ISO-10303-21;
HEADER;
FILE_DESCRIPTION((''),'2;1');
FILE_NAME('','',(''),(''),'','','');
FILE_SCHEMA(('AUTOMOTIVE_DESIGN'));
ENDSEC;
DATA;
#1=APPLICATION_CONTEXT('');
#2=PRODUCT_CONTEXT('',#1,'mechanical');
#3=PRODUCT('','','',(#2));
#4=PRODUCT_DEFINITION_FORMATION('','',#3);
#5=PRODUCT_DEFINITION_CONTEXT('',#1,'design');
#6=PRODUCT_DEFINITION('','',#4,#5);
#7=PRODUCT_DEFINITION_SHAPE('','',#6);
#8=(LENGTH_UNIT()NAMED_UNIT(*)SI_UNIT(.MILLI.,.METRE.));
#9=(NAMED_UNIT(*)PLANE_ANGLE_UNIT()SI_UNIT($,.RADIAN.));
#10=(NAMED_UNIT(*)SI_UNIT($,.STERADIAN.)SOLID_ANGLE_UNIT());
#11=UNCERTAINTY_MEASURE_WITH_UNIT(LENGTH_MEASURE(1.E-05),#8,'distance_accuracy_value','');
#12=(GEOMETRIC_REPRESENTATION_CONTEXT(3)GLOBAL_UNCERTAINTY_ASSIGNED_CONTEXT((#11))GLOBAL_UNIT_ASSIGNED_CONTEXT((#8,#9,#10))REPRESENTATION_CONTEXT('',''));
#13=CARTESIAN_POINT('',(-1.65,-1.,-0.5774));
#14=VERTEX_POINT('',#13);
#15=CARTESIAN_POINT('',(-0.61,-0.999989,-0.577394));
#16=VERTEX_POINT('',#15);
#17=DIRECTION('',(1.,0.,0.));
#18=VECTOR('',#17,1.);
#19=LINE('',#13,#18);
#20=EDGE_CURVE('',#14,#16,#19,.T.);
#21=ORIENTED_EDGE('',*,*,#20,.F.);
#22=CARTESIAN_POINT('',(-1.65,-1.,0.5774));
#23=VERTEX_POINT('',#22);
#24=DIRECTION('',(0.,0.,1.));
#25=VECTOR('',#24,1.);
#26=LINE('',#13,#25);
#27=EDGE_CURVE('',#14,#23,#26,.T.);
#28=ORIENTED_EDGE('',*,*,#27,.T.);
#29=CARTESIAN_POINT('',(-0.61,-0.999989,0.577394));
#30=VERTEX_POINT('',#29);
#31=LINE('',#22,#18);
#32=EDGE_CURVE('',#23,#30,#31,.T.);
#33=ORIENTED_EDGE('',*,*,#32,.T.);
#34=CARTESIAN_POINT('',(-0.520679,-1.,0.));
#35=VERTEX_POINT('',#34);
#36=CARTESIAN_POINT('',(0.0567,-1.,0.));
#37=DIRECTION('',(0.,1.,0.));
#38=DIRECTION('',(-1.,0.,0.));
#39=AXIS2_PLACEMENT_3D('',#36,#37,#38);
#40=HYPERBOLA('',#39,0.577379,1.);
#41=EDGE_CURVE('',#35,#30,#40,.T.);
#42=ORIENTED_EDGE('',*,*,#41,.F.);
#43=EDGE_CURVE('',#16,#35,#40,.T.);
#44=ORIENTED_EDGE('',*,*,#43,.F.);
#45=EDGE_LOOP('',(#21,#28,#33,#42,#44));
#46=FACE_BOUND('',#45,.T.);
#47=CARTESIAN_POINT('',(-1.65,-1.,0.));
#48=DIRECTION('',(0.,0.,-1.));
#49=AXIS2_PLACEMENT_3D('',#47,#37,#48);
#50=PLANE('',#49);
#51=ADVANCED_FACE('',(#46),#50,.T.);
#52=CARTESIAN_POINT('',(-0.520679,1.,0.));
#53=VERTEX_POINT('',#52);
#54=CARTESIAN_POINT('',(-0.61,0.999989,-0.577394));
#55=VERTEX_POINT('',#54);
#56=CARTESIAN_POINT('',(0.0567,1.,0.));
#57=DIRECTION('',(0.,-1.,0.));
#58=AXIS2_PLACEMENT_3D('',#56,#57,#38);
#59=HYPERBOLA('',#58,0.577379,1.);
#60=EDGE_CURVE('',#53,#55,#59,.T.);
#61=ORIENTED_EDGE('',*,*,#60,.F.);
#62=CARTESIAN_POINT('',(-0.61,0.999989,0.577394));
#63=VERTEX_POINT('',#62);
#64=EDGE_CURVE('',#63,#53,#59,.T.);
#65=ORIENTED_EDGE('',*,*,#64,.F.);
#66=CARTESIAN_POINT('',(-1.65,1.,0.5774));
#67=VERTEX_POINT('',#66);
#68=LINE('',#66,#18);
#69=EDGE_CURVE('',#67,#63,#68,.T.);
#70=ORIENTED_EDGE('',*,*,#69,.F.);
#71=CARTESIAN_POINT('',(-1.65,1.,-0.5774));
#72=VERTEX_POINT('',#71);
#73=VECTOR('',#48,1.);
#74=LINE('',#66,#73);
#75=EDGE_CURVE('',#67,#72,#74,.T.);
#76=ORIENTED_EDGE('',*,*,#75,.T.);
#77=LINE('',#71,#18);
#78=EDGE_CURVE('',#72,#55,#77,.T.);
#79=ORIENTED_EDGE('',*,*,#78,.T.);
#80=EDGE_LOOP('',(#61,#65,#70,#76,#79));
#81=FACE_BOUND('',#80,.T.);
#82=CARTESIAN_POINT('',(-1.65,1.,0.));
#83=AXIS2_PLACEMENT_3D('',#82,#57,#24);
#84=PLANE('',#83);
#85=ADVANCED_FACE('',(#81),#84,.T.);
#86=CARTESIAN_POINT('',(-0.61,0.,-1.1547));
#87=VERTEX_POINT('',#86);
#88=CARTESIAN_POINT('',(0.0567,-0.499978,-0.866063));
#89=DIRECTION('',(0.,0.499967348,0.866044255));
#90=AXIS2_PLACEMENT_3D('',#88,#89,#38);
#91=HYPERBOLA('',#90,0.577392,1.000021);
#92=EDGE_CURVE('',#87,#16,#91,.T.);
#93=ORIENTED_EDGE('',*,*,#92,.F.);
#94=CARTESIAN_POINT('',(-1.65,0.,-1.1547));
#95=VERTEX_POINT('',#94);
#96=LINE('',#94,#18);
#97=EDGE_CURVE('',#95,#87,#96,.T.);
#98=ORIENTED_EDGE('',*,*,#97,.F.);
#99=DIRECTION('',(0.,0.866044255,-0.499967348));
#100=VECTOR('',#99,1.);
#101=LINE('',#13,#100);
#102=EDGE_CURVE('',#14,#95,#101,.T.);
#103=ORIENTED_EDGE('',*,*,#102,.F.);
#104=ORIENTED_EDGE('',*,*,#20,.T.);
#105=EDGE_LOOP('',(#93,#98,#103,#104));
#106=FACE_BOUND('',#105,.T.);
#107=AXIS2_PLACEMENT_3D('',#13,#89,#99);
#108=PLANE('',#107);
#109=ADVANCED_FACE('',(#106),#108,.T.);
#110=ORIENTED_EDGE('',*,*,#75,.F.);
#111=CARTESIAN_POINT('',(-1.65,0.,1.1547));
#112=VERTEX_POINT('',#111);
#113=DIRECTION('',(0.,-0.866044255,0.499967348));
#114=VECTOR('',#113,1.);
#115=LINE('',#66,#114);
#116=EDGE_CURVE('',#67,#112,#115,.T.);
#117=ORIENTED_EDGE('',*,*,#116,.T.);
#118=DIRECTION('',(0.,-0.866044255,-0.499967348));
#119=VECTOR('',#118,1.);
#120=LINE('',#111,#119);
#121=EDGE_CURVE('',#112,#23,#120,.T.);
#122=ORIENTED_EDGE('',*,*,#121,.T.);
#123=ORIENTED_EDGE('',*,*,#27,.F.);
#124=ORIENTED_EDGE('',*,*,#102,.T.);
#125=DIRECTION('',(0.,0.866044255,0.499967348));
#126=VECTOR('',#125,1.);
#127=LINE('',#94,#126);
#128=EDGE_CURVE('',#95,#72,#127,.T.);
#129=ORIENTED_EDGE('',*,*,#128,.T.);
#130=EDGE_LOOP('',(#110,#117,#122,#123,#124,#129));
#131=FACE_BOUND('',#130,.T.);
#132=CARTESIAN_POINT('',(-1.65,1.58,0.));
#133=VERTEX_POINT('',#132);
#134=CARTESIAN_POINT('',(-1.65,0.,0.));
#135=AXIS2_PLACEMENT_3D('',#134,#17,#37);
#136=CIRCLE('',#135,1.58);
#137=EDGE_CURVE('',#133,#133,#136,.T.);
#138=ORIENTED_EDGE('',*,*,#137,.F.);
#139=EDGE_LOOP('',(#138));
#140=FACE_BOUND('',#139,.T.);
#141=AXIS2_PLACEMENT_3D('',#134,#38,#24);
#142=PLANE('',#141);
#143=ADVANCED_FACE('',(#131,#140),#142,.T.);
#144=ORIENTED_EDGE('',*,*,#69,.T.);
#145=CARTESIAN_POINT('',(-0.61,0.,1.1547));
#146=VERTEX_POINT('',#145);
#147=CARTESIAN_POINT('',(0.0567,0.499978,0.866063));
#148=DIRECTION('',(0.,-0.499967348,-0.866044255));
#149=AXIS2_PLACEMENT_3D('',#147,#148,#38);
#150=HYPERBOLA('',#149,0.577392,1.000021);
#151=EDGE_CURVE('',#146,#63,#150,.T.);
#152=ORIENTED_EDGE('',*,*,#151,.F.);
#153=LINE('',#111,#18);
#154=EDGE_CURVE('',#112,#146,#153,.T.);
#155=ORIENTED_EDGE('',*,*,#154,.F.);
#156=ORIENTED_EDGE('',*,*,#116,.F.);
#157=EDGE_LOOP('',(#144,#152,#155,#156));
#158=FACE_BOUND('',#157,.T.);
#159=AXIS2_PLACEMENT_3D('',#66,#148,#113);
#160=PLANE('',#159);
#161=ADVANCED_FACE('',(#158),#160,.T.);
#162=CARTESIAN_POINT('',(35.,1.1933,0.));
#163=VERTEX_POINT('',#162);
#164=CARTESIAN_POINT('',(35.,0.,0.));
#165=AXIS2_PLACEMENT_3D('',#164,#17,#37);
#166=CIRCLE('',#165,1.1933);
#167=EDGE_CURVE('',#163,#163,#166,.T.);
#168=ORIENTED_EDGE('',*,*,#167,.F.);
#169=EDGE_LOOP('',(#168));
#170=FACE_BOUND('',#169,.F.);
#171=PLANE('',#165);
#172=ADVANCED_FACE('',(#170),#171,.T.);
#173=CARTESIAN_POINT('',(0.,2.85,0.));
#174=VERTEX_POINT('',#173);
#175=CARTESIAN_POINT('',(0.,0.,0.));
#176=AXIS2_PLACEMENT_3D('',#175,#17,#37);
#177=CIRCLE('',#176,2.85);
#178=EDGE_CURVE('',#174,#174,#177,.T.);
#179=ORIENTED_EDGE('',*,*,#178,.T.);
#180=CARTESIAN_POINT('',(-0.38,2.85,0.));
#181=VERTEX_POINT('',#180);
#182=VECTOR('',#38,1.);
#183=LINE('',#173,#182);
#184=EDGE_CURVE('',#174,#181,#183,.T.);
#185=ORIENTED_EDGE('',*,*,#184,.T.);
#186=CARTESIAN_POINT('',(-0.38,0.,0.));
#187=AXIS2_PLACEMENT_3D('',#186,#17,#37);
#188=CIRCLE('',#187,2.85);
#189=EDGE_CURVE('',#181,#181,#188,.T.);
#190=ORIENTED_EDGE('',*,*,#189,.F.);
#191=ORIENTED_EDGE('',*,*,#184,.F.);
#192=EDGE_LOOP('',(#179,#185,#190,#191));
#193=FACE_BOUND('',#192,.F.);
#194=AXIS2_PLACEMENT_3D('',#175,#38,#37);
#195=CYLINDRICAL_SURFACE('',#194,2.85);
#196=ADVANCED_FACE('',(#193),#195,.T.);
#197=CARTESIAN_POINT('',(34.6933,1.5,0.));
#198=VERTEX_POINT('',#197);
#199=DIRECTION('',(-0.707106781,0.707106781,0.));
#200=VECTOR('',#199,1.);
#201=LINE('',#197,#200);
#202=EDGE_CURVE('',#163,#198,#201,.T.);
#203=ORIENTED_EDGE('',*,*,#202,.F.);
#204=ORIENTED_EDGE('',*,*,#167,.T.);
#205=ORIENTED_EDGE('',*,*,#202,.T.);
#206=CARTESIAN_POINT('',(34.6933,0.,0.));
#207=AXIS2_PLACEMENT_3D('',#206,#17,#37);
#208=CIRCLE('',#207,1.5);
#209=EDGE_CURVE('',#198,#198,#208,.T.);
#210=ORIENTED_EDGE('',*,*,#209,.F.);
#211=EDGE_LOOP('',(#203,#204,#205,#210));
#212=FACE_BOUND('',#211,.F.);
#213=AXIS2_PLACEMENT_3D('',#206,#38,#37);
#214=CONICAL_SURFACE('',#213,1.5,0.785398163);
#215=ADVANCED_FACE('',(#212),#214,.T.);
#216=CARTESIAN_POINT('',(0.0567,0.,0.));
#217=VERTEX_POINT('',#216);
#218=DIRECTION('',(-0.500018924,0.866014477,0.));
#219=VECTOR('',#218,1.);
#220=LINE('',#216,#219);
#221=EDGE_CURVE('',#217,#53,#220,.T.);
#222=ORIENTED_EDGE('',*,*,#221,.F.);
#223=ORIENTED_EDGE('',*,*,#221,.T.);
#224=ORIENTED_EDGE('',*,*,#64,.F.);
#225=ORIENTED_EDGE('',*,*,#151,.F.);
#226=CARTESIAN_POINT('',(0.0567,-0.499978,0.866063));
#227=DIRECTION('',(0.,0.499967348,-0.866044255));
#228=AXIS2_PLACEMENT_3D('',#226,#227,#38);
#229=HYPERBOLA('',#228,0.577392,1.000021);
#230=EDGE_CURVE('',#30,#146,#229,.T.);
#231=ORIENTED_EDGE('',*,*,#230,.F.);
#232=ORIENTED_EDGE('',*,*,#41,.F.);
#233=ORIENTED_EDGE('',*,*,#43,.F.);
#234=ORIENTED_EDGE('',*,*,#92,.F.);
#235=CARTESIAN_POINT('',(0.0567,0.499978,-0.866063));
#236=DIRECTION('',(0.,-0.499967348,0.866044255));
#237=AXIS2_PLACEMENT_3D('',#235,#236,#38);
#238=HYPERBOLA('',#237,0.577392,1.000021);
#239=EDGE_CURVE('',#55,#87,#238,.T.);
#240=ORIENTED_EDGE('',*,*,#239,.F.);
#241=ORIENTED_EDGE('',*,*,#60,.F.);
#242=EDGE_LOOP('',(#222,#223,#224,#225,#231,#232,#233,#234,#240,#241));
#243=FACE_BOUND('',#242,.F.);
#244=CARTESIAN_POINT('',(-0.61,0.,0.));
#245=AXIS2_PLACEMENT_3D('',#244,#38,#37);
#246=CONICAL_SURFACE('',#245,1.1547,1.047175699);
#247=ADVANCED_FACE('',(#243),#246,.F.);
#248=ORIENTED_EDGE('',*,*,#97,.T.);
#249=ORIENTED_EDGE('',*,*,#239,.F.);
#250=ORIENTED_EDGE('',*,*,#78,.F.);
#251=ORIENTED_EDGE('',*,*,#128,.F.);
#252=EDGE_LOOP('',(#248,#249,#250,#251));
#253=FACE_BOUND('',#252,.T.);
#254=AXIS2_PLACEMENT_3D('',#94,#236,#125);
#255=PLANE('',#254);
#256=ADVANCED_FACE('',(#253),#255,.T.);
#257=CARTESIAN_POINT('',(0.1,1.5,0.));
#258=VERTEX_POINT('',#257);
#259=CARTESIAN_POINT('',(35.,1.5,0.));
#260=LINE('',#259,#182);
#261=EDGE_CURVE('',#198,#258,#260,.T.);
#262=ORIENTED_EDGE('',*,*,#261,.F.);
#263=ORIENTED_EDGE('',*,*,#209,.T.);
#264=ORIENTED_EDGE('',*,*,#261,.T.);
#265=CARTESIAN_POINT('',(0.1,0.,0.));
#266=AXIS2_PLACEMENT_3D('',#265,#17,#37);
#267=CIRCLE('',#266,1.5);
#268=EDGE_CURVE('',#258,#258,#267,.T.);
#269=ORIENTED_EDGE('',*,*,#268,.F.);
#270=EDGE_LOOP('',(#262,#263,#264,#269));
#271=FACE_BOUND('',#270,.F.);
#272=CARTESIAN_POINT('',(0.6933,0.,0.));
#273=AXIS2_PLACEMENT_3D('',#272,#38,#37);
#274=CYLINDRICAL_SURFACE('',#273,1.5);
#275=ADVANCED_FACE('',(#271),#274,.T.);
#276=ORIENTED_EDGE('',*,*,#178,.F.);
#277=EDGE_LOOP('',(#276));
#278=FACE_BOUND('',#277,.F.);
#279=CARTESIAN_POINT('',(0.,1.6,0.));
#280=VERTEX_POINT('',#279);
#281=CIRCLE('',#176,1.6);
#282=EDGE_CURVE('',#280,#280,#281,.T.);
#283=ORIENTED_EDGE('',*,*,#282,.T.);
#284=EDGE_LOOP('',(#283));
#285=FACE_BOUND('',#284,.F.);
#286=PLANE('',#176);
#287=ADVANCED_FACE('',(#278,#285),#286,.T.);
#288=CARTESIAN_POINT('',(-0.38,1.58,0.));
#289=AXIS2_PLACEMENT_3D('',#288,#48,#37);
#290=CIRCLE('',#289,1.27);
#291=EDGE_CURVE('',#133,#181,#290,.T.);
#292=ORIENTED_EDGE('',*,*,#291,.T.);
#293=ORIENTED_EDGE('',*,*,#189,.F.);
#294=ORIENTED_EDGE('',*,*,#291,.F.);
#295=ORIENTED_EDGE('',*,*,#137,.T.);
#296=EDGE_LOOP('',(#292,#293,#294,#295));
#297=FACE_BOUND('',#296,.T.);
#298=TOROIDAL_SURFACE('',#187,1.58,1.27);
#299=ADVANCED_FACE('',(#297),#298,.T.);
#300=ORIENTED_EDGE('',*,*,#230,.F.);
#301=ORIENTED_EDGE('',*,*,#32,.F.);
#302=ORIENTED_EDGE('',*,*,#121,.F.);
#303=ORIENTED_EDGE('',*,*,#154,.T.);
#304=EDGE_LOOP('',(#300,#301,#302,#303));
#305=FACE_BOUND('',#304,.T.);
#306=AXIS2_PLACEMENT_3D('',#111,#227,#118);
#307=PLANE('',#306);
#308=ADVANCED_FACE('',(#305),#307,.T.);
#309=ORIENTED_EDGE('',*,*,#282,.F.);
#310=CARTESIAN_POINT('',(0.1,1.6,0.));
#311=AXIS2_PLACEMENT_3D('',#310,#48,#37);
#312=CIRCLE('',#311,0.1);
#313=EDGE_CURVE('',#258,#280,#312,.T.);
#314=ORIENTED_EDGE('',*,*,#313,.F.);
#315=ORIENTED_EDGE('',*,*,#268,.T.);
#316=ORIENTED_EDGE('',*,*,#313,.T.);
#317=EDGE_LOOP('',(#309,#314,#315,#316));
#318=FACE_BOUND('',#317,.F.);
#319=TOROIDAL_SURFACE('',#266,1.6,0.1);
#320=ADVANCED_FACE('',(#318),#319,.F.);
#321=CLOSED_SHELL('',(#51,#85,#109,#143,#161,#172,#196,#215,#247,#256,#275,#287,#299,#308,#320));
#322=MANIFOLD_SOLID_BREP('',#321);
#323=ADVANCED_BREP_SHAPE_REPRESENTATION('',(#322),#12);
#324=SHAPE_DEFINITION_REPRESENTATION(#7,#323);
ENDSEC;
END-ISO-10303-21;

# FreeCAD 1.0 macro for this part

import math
import FreeCAD as App
import Part
import Sketcher
Q = App.Units.Quantity


def edges_at(feature, points):
    """Names of the edges that pass closest to the given points."""
    edges = feature.Shape.Edges
    near = lambda p: min(range(len(edges)), key=lambda i: edges[i].distToShape(Part.Vertex(*p))[0])
    return sorted({f"Edge{near(p) + 1}" for p in points})


def add_polygon(sketch, points):
    """Adds a closed chain of lines whose ends are joined by coincident constraints."""
    first, n = sketch.GeometryCount, len(points)
    for a, b in zip(points, points[1:] + points[:1]):
        sketch.addGeometry(Part.LineSegment(App.Vector(*a, 0), App.Vector(*b, 0)), False)
    for i in range(n):
        sketch.addConstraint(Sketcher.Constraint("Coincident", first + i, 2, first + (i + 1) % n, 1))

doc = App.newDocument("Part")
body = doc.addObject("PartDesign::Body", "Body")

# Sketch on XY plane
sketch1 = doc.addObject("Sketcher::SketchObject", "Sketch")
body.addObject(sketch1)
sketch1.AttachmentSupport = (doc.XY_Plane, [""])
sketch1.MapMode = "FlatFace"
add_polygon(sketch1, [(0.1, 0), (35, 0), (35, 1.5), (0, 1.5), (0, 2.9), (-1.6, 2.9), (-1.6, 1.2), (-0.6, 1.2)])  # lines 0-7
sketch1.addConstraint(Sketcher.Constraint("Horizontal", 0))
sketch1.addConstraint(Sketcher.Constraint("Vertical", 1))
sketch1.addConstraint(Sketcher.Constraint("Horizontal", 2))
sketch1.addConstraint(Sketcher.Constraint("Vertical", 3))
sketch1.addConstraint(Sketcher.Constraint("Horizontal", 4))
sketch1.addConstraint(Sketcher.Constraint("Vertical", 5))
sketch1.addConstraint(Sketcher.Constraint("Horizontal", 6))
sketch1.addConstraint(Sketcher.Constraint("PointOnObject", 0, 2, -1))
sketch1.addConstraint(Sketcher.Constraint("PointOnObject", 2, 2, -2))
sketch1.addConstraint(Sketcher.Constraint("DistanceX", 2, 2, 2, 1, Q("35 mm")))
sketch1.addConstraint(Sketcher.Constraint("DistanceX", 4, 2, 4, 1, Q("1.65 mm")))
sketch1.addConstraint(Sketcher.Constraint("DistanceX", 6, 1, 6, 2, Q("1.04 mm")))
sketch1.addConstraint(Sketcher.Constraint("DistanceY", 1, 1, 1, 2, Q("1.5 mm")))
sketch1.addConstraint(Sketcher.Constraint("DistanceY", 3, 1, 3, 2, Q("1.35 mm")))
sketch1.addConstraint(Sketcher.Constraint("DistanceX", 0, 1, 0, 2, Q("34.9433 mm")))
sketch1.addConstraint(Sketcher.Constraint("DistanceY", 5, 2, 5, 1, Q("1.6953 mm")))
revolution = doc.addObject("PartDesign::Revolution", "Revolution")
body.addObject(revolution)
revolution.Profile = sketch1
revolution.ReferenceAxis = (sketch1, ["H_Axis"])
revolution.Angle = 360

# Sketch on YZ plane
sketch2 = doc.addObject("Sketcher::SketchObject", "Sketch001")
body.addObject(sketch2)
sketch2.AttachmentSupport = (doc.YZ_Plane, [""])
sketch2.MapMode = "FlatFace"
sketch2.AttachmentOffset = App.Placement(App.Vector(0, 0, -1.65), App.Rotation())
sketch2.addGeometry(Part.LineSegment(App.Vector(1, 0.6, 0), App.Vector(0, 1.2, 0)), False)
sketch2.addGeometry(Part.ArcOfCircle(Part.Circle(App.Vector(0, 0, 0), App.Vector(0, 0, 1), 1.2), math.radians(30), math.radians(90)), False)
sketch2.addGeometry(Part.ArcOfCircle(Part.Circle(App.Vector(0, 0, 0), App.Vector(0, 0, 1), 1.2), math.radians(90), math.radians(150)), False)
sketch2.addGeometry(Part.LineSegment(App.Vector(0, 1.2, 0), App.Vector(-1, 0.6, 0)), False)
sketch2.addGeometry(Part.ArcOfCircle(Part.Circle(App.Vector(0, 0, 0), App.Vector(0, 0, 1), 1.2), math.radians(-30), math.radians(30)), False)
sketch2.addGeometry(Part.LineSegment(App.Vector(1, 0.6, 0), App.Vector(1, -0.6, 0)), False)
sketch2.addGeometry(Part.LineSegment(App.Vector(-1, 0.6, 0), App.Vector(-1, -0.6, 0)), False)
sketch2.addGeometry(Part.ArcOfCircle(Part.Circle(App.Vector(0, 0, 0), App.Vector(0, 0, 1), 1.2), math.radians(150), math.radians(210)), False)
sketch2.addGeometry(Part.LineSegment(App.Vector(-1, -0.6, 0), App.Vector(0, -1.2, 0)), False)
sketch2.addGeometry(Part.ArcOfCircle(Part.Circle(App.Vector(0, 0, 0), App.Vector(0, 0, 1), 1.2), math.radians(-150), math.radians(-90)), False)
sketch2.addGeometry(Part.ArcOfCircle(Part.Circle(App.Vector(0, 0, 0), App.Vector(0, 0, 1), 1.2), math.radians(-90), math.radians(-30)), False)
sketch2.addGeometry(Part.LineSegment(App.Vector(0, -1.2, 0), App.Vector(1, -0.6, 0)), False)
sketch2.addConstraint(Sketcher.Constraint("Coincident", 0, 1, 1, 1))
sketch2.addConstraint(Sketcher.Constraint("Coincident", 1, 2, 0, 2))
sketch2.addConstraint(Sketcher.Constraint("Coincident", 2, 1, 3, 1))
sketch2.addConstraint(Sketcher.Constraint("Coincident", 3, 2, 2, 2))
sketch2.addConstraint(Sketcher.Constraint("Coincident", 4, 1, 5, 2))
sketch2.addConstraint(Sketcher.Constraint("Coincident", 5, 1, 4, 2))
sketch2.addConstraint(Sketcher.Constraint("Coincident", 6, 1, 7, 1))
sketch2.addConstraint(Sketcher.Constraint("Coincident", 7, 2, 6, 2))
sketch2.addConstraint(Sketcher.Constraint("Coincident", 8, 1, 9, 1))
sketch2.addConstraint(Sketcher.Constraint("Coincident", 9, 2, 8, 2))
sketch2.addConstraint(Sketcher.Constraint("Coincident", 10, 1, 11, 1))
sketch2.addConstraint(Sketcher.Constraint("Coincident", 11, 2, 10, 2))
sketch2.addConstraint(Sketcher.Constraint("Vertical", 5))
sketch2.addConstraint(Sketcher.Constraint("Vertical", 6))
sketch2.addConstraint(Sketcher.Constraint("Coincident", 1, 3, -1, 1))
sketch2.addConstraint(Sketcher.Constraint("Coincident", 2, 3, -1, 1))
sketch2.addConstraint(Sketcher.Constraint("Coincident", 4, 3, -1, 1))
sketch2.addConstraint(Sketcher.Constraint("Coincident", 7, 3, -1, 1))
sketch2.addConstraint(Sketcher.Constraint("Coincident", 9, 3, -1, 1))
sketch2.addConstraint(Sketcher.Constraint("Coincident", 10, 3, -1, 1))
sketch2.addConstraint(Sketcher.Constraint("Coincident", 2, 1, 1, 2))
sketch2.addConstraint(Sketcher.Constraint("Coincident", 5, 1, 0, 1))
sketch2.addConstraint(Sketcher.Constraint("Coincident", 6, 1, 3, 2))
sketch2.addConstraint(Sketcher.Constraint("Coincident", 8, 1, 7, 2))
sketch2.addConstraint(Sketcher.Constraint("Coincident", 10, 1, 9, 2))
sketch2.addConstraint(Sketcher.Constraint("PointOnObject", 1, 2, -2))
sketch2.addConstraint(Sketcher.Constraint("PointOnObject", 9, 2, -2))
sketch2.addConstraint(Sketcher.Constraint("Parallel", 0, 8))
sketch2.addConstraint(Sketcher.Constraint("Parallel", 3, 11))
sketch2.addConstraint(Sketcher.Constraint("DistanceX", -1, 1, 0, 1, Q("1 mm")))
sketch2.addConstraint(Sketcher.Constraint("Radius", 1, Q("1.1547 mm")))
pad1 = doc.addObject("PartDesign::Pad", "Pad")
body.addObject(pad1)
pad1.Profile = sketch2
pad1.Type = "UpToFirst"
doc.recompute()

fillet = doc.addObject("PartDesign::Fillet", "Fillet")
body.addObject(fillet)
fillet.Base = (pad1, edges_at(pad1, [(-1.65, -2.85, 0)]))
fillet.Radius = 1.27
doc.recompute()

chamfer = doc.addObject("PartDesign::Chamfer", "Chamfer")
body.addObject(chamfer)
chamfer.Base = (fillet, edges_at(fillet, [(35, -1.5, 0)]))
chamfer.ChamferType = "Two distances"
chamfer.Size = 0.3067
chamfer.Size2 = 0.3067
doc.recompute()

fillet2 = doc.addObject("PartDesign::Fillet", "Fillet001")
body.addObject(fillet2)
fillet2.Base = (chamfer, edges_at(chamfer, [(0, -1.5, 0)]))
fillet2.Radius = 0.1

doc.recompute()
